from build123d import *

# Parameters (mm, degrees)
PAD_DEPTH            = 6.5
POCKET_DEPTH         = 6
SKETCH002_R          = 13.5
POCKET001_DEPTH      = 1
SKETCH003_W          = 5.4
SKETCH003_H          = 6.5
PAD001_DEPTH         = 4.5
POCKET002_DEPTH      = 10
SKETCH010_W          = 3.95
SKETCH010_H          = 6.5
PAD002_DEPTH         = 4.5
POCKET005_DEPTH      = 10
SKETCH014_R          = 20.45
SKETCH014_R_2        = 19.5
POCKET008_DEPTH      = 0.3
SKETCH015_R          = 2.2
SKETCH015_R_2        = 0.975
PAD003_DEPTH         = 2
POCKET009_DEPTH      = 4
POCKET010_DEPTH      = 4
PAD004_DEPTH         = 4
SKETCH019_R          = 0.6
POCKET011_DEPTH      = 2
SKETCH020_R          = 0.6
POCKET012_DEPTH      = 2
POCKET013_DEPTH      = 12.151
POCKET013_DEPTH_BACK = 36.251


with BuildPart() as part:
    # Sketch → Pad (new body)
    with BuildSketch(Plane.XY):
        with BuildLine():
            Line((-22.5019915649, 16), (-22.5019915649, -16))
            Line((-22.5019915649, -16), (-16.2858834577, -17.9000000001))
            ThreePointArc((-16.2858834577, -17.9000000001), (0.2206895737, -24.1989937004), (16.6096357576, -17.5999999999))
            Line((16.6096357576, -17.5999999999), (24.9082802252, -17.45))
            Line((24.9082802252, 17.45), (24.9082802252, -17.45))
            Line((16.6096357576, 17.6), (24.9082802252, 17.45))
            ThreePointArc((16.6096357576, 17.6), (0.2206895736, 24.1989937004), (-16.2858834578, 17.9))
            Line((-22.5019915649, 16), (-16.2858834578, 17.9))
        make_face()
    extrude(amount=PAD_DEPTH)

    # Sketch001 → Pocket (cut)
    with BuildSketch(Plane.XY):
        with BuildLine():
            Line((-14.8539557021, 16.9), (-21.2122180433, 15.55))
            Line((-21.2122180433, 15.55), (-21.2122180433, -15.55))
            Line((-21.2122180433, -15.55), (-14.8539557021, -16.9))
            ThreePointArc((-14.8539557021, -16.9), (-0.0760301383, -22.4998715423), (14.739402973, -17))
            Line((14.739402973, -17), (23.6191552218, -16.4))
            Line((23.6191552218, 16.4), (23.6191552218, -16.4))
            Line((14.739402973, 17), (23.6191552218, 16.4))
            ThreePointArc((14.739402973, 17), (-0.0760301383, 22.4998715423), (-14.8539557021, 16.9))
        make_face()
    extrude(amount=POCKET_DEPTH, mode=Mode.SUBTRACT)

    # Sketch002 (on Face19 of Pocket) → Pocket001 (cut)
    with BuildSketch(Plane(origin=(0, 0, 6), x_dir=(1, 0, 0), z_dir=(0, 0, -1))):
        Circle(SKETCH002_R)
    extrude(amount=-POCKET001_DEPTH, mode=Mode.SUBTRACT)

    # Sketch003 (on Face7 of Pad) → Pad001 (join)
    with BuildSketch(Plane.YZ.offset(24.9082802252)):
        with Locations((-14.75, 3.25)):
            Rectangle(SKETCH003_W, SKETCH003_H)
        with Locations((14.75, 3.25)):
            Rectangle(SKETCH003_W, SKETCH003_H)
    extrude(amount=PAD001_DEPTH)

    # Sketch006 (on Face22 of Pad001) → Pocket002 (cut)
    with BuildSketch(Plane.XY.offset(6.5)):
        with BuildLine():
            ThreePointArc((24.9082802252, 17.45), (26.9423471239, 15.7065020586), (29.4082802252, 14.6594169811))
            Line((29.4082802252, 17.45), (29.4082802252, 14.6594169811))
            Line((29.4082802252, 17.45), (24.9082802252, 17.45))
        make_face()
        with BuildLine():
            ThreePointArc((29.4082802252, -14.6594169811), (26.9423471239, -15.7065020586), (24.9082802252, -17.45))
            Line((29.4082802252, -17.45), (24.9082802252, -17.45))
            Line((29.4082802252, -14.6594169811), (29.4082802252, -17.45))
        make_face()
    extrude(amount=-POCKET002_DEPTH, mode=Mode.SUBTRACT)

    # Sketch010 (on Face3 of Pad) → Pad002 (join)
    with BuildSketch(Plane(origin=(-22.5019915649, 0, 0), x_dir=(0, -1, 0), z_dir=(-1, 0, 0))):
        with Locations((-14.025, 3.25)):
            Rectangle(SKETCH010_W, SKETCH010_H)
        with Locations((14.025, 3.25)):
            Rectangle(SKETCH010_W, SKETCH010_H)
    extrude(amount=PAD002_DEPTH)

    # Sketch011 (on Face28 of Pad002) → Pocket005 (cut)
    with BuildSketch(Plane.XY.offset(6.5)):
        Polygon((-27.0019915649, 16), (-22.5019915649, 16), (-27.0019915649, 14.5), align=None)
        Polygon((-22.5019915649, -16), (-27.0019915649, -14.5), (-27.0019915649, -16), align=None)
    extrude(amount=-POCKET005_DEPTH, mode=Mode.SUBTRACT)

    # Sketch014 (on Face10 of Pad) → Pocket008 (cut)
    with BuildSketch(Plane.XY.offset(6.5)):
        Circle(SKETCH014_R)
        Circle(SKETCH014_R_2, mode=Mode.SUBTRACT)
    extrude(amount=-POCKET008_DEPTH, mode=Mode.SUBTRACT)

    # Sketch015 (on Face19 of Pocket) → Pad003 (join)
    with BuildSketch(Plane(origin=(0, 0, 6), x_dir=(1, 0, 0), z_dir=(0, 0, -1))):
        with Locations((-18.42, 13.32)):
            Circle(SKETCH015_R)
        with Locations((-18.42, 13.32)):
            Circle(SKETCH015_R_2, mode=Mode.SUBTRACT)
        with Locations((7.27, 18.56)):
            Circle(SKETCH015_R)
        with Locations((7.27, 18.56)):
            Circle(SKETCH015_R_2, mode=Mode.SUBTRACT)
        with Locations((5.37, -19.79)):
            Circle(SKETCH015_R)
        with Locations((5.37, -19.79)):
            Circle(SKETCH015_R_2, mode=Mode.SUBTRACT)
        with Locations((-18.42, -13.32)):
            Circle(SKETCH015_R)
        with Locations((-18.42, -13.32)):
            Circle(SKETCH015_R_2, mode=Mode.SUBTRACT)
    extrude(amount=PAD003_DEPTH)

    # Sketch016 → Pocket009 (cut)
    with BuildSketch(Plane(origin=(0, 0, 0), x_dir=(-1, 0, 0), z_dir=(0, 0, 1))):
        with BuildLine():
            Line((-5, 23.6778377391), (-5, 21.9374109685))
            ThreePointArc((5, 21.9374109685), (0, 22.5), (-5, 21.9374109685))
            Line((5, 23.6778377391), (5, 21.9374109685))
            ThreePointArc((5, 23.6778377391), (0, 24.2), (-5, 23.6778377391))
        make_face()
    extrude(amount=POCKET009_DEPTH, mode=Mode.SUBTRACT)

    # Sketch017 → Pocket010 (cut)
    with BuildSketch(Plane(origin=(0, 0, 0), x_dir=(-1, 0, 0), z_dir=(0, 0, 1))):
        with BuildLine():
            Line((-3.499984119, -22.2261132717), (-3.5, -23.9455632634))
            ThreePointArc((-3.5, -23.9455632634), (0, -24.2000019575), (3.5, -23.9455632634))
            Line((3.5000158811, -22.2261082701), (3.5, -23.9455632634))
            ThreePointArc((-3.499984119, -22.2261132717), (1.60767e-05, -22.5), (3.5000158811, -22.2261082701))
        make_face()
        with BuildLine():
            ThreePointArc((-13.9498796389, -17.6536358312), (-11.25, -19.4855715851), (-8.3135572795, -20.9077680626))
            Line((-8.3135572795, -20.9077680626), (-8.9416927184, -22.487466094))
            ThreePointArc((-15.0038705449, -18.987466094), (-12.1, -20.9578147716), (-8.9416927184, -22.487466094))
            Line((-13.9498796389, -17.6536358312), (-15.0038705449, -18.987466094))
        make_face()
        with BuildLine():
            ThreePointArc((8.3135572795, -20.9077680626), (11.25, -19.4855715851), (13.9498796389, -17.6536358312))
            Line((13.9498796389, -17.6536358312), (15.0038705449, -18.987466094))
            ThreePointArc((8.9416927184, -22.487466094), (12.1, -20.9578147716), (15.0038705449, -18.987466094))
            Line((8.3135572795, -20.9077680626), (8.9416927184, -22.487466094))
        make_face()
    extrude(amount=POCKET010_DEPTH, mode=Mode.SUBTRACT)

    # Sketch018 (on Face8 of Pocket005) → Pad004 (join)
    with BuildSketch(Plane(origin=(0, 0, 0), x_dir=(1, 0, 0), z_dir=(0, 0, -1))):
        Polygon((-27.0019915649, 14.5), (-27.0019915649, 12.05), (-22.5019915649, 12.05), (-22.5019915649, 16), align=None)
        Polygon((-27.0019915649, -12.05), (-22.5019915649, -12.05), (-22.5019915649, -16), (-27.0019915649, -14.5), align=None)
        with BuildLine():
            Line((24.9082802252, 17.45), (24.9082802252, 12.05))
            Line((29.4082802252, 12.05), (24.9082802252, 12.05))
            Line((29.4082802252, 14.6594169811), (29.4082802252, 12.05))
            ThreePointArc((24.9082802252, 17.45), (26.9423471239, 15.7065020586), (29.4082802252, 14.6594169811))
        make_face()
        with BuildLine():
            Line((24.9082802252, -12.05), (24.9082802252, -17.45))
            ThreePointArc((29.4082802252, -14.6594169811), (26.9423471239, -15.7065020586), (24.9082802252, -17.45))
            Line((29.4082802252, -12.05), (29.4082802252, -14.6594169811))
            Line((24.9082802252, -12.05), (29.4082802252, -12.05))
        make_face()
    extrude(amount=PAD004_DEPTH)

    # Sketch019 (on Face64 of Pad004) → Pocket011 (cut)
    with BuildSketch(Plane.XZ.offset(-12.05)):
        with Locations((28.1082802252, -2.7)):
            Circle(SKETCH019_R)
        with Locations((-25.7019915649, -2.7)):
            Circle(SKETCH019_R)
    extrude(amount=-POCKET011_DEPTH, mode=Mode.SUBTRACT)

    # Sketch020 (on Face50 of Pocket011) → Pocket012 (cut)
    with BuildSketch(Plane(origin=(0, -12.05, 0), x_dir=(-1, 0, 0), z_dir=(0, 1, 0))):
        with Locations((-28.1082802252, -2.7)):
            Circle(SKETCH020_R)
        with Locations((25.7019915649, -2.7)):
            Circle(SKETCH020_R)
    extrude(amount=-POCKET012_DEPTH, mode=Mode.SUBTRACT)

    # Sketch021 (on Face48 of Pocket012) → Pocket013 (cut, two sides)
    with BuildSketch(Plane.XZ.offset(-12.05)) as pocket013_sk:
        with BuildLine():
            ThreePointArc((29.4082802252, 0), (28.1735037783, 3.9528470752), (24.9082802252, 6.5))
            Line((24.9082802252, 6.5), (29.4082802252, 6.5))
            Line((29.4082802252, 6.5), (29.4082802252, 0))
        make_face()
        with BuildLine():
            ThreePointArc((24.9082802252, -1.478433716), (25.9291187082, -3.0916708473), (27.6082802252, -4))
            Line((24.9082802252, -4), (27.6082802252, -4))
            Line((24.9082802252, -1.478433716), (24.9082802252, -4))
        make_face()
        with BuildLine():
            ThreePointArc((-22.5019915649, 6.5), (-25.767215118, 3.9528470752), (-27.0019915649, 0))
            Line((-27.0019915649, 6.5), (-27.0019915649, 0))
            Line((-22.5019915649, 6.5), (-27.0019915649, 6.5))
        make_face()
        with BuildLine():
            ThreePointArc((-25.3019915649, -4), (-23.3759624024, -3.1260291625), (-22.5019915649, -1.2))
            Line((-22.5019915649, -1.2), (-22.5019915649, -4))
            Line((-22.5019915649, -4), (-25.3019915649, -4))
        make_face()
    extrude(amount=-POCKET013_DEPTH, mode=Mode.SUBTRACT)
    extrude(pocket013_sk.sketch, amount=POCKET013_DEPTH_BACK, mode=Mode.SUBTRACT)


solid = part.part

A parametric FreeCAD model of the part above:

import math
import FreeCAD as App
import Part
import Sketcher
from FreeCAD import Vector

doc = App.newDocument("Part")
body = doc.addObject("PartDesign::Body", "Body")

sketch1 = body.newObject("Sketcher::SketchObject", "Sketch")
sketch1.AttachmentSupport = (doc.getObject("XY_Plane"), [""])
sketch1.MapMode = "FlatFace"
sketch1.addGeometry([
    Part.LineSegment(Vector(-23, 16, 0), Vector(-23, -16, 0)),
    Part.LineSegment(Vector(-23, -16, 0), Vector(-16, -18, 0)),
    Part.ArcOfCircle(Part.Circle(Vector(0, 0, 0), Vector(0, 0, 1), 24), math.radians(-132), math.radians(-47)),
    Part.LineSegment(Vector(17, -18, 0), Vector(25, -17, 0)),
    Part.LineSegment(Vector(25, -17, 0), Vector(25, 17, 0)),
    Part.LineSegment(Vector(25, 17, 0), Vector(17, 18, 0)),
    Part.ArcOfCircle(Part.Circle(Vector(0, 0, 0), Vector(0, 0, 1), 24), math.radians(47), math.radians(132)),
    Part.LineSegment(Vector(-16, 18, 0), Vector(-23, 16, 0)),
], False)
sketch1.addConstraint([
    Sketcher.Constraint("Coincident", 0, 2, 1, 1),
    Sketcher.Constraint("Coincident", 1, 2, 2, 1),
    Sketcher.Constraint("Coincident", 2, 2, 3, 1),
    Sketcher.Constraint("Coincident", 3, 2, 4, 1),
    Sketcher.Constraint("Coincident", 4, 2, 5, 1),
    Sketcher.Constraint("Coincident", 5, 2, 6, 1),
    Sketcher.Constraint("Coincident", 6, 2, 7, 1),
    Sketcher.Constraint("Coincident", 7, 2, 0, 1),
    Sketcher.Constraint("Vertical", 0),
    Sketcher.Constraint("Vertical", 4),
    Sketcher.Constraint("Coincident", 2, 3, -1, 1),
    Sketcher.Constraint("Coincident", 6, 3, -1, 1),
    Sketcher.Constraint("Equal", 2, 6),
    Sketcher.Constraint("Vertical", 2, 2, 5, 2),
    Sketcher.Constraint("Vertical", 1, 2, 6, 2),
    Sketcher.Constraint("Equal", 3, 5),
    Sketcher.Constraint("Equal", 1, 7),
    Sketcher.Constraint("Radius", 2, 24.2),
    Sketcher.Constraint("DistanceY", 0, 2, 0, 1, 32.0),
    Sketcher.Constraint("DistanceY", 4, 1, 4, 2, 34.9),
    Sketcher.Constraint("Distance", 1, 6.5),
    Sketcher.Constraint("Distance", 3, 8.3),
    Sketcher.Constraint("DistanceY", 1, 2, -1, 1, 17.9),
    Sketcher.Constraint("DistanceY", 2, 2, -1, 1, 17.6),
])
pad1 = body.newObject("PartDesign::Pad", "Pad")
pad1.Profile = sketch1
pad1.Length = 6.5

sketch2 = body.newObject("Sketcher::SketchObject", "Sketch001")
sketch2.AttachmentSupport = (doc.getObject("XY_Plane"), [""])
sketch2.MapMode = "FlatFace"
sketch2.addGeometry([
    Part.LineSegment(Vector(-15, 17, 0), Vector(-21, 16, 0)),
    Part.LineSegment(Vector(-21, 16, 0), Vector(-21, -16, 0)),
    Part.LineSegment(Vector(-21, -16, 0), Vector(-15, -17, 0)),
    Part.ArcOfCircle(Part.Circle(Vector(0, 0, 0), Vector(0, 0, 1), 22), math.radians(-131), math.radians(-49)),
    Part.LineSegment(Vector(15, -17, 0), Vector(24, -16, 0)),
    Part.LineSegment(Vector(24, -16, 0), Vector(24, 16, 0)),
    Part.LineSegment(Vector(24, 16, 0), Vector(15, 17, 0)),
    Part.ArcOfCircle(Part.Circle(Vector(0, 0, 0), Vector(0, 0, 1), 22), math.radians(49), math.radians(131)),
], False)
sketch2.addConstraint([
    Sketcher.Constraint("Coincident", 0, 2, 1, 1),
    Sketcher.Constraint("Coincident", 1, 2, 2, 1),
    Sketcher.Constraint("Coincident", 2, 2, 3, 1),
    Sketcher.Constraint("Coincident", 3, 2, 4, 1),
    Sketcher.Constraint("Coincident", 4, 2, 5, 1),
    Sketcher.Constraint("Coincident", 5, 2, 6, 1),
    Sketcher.Constraint("Coincident", 6, 2, 7, 1),
    Sketcher.Constraint("Coincident", 7, 2, 0, 1),
    Sketcher.Constraint("Vertical", 1),
    Sketcher.Constraint("Vertical", 5),
    Sketcher.Constraint("Coincident", 3, 3, -1, 1),
    Sketcher.Constraint("Coincident", 7, 3, -1, 1),
    Sketcher.Constraint("Equal", 3, 7),
    Sketcher.Constraint("Vertical", 3, 2, 6, 2),
    Sketcher.Constraint("Vertical", 2, 2, 7, 2),
    Sketcher.Constraint("Equal", 0, 2),
    Sketcher.Constraint("Equal", 4, 6),
    Sketcher.Constraint("Radius", 3, 22.5),
    Sketcher.Constraint("DistanceY", 1, 2, 1, 1, 31.1),
    Sketcher.Constraint("DistanceY", 5, 1, 5, 2, 32.8),
    Sketcher.Constraint("DistanceY", 3, 2, -1, 1, 17.0),
    Sketcher.Constraint("Distance", 0, 6.5),
    Sketcher.Constraint("Distance", 4, 8.9),
    Sketcher.Constraint("DistanceY", 2, 2, -1, 1, 16.9),
])
pocket1 = body.newObject("PartDesign::Pocket", "Pocket")
pocket1.Profile = sketch2
pocket1.Length = 6
pocket1.Reversed = True

sketch3 = body.newObject("Sketcher::SketchObject", "Sketch002")
sketch3.AttachmentSupport = (doc.getObject("XY_Plane"), [""])
sketch3.MapMode = "FlatFace"
sketch3.AttachmentOffset = App.Placement(Vector(0, 0, 6), App.Rotation())
sketch3.addGeometry(Part.Circle(Vector(0, 0, 0), Vector(0, 0, 1), 14), False)
sketch3.addConstraint([
    Sketcher.Constraint("Coincident", 0, 3, -1, 1),
    Sketcher.Constraint("Diameter", 0, 27.0),
])
pocket2 = body.newObject("PartDesign::Pocket", "Pocket001")
pocket2.Profile = sketch3
pocket2.Length = 1
pocket2.Reversed = True

sketch4 = body.newObject("Sketcher::SketchObject", "Sketch003")
sketch4.AttachmentSupport = (doc.getObject("YZ_Plane"), [""])
sketch4.MapMode = "FlatFace"
sketch4.AttachmentOffset = App.Placement(Vector(0, 0, 24.90828), App.Rotation())
sketch4.addGeometry([
    Part.LineSegment(Vector(-17, 6, 0), Vector(-17, 0, 0)),
    Part.LineSegment(Vector(-17, 0, 0), Vector(-12, 0, 0)),
    Part.LineSegment(Vector(-12, 0, 0), Vector(-12, 6, 0)),
    Part.LineSegment(Vector(-12, 6, 0), Vector(-17, 6, 0)),
    Part.LineSegment(Vector(12, 6, 0), Vector(12, 0, 0)),
    Part.LineSegment(Vector(12, 0, 0), Vector(17, 0, 0)),
    Part.LineSegment(Vector(17, 0, 0), Vector(17, 6, 0)),
    Part.LineSegment(Vector(17, 6, 0), Vector(12, 6, 0)),
], False)
sketch4.addConstraint([
    Sketcher.Constraint("Coincident", 0, 2, 1, 1),
    Sketcher.Constraint("Coincident", 1, 2, 2, 1),
    Sketcher.Constraint("Coincident", 2, 2, 3, 1),
    Sketcher.Constraint("Coincident", 3, 2, 0, 1),
    Sketcher.Constraint("Coincident", 4, 2, 5, 1),
    Sketcher.Constraint("Coincident", 5, 2, 6, 1),
    Sketcher.Constraint("Coincident", 6, 2, 7, 1),
    Sketcher.Constraint("Coincident", 7, 2, 4, 1),
    Sketcher.Constraint("Vertical", 0),
    Sketcher.Constraint("Horizontal", 1),
    Sketcher.Constraint("Vertical", 2),
    Sketcher.Constraint("Horizontal", 3),
    Sketcher.Constraint("Vertical", 4),
    Sketcher.Constraint("Horizontal", 5),
    Sketcher.Constraint("Vertical", 6),
    Sketcher.Constraint("Horizontal", 7),
    Sketcher.Constraint("Symmetric", 1, 2, 4, 2, -1, 1),
    Sketcher.Constraint("Symmetric", 0, 2, 5, 2, -2),
    Sketcher.Constraint("Horizontal", 3, 2, 6, 2),
    Sketcher.Constraint("DistanceX", 1, 1, 1, 2, 5.4),
    Sketcher.Constraint("DistanceY", 0, 2, 0, 1, 6.5),
    Sketcher.Constraint("DistanceX", 1, 2, 4, 2, 24.1),
])
pad2 = body.newObject("PartDesign::Pad", "Pad001")
pad2.Profile = sketch4
pad2.Length = 4.5

sketch5 = body.newObject("Sketcher::SketchObject", "Sketch004")
sketch5.AttachmentSupport = (doc.getObject("XY_Plane"), [""])
sketch5.MapMode = "FlatFace"
sketch5.AttachmentOffset = App.Placement(Vector(0, 0, 6.5), App.Rotation())
sketch5.addGeometry([
    Part.ArcOfCircle(Part.Circle(Vector(31.6, 23.2, 0), Vector(0, 0, 1), 8.8), math.radians(-139), math.radians(-104)),
    Part.LineSegment(Vector(29.4, 14.7, 0), Vector(29.4, 17.4, 0)),
    Part.LineSegment(Vector(29.4, 17.4, 0), Vector(24.9, 17.4, 0)),
    Part.ArcOfCircle(Part.Circle(Vector(31.6, -23.2, 0), Vector(0, 0, 1), 8.8), math.radians(104), math.radians(139)),
    Part.LineSegment(Vector(24.9, -17.4, 0), Vector(29.4, -17.4, 0)),
    Part.LineSegment(Vector(29.4, -17.4, 0), Vector(29.4, -14.7, 0)),
], False)
sketch5.addConstraint([
    Sketcher.Constraint("Coincident", 0, 2, 1, 1),
    Sketcher.Constraint("Coincident", 1, 2, 2, 1),
    Sketcher.Constraint("Coincident", 2, 2, 0, 1),
    Sketcher.Constraint("Coincident", 3, 2, 4, 1),
    Sketcher.Constraint("Coincident", 4, 2, 5, 1),
    Sketcher.Constraint("Coincident", 5, 2, 3, 1),
    Sketcher.Constraint("Vertical", 1),
    Sketcher.Constraint("Horizontal", 2),
    Sketcher.Constraint("Horizontal", 4),
    Sketcher.Constraint("Vertical", 5),
    Sketcher.Constraint("Equal", 0, 3),
    Sketcher.Constraint("Symmetric", 0, 3, 3, 3, -1),
    Sketcher.Constraint("Symmetric", 1, 2, 4, 2, -1),
    Sketcher.Constraint("DistanceX", 2, 2, 2, 1, 4.5),
    Sketcher.Constraint("DistanceY", 3, 3, 0, 3, 46.3),
    Sketcher.Constraint("DistanceY", 1, 2, 0, 3, 5.7),
    Sketcher.Constraint("DistanceX", 0, 2, 0, 3, 2.15),
    Sketcher.Constraint("DistanceX", -1, 1, 0, 3, 31.55828),
])
pocket3 = body.newObject("PartDesign::Pocket", "Pocket002")
pocket3.Profile = sketch5
pocket3.Length = 10

sketch6 = body.newObject("Sketcher::SketchObject", "Sketch005")
sketch6.AttachmentSupport = (doc.getObject("YZ_Plane"), [""])
sketch6.MapMode = "FlatFace"
sketch6.AttachmentOffset = App.Placement(Vector(0, 0, -22.501992), App.Rotation())
sketch6.addGeometry([
    Part.LineSegment(Vector(16, 6.5, 0), Vector(16, 0, 0)),
    Part.LineSegment(Vector(16, 0, 0), Vector(12.1, 0, 0)),
    Part.LineSegment(Vector(12.1, 0, 0), Vector(12.1, 6.5, 0)),
    Part.LineSegment(Vector(12.1, 6.5, 0), Vector(16, 6.5, 0)),
    Part.LineSegment(Vector(-12.1, 6.5, 0), Vector(-12.1, 0, 0)),
    Part.LineSegment(Vector(-12.1, 0, 0), Vector(-16, 0, 0)),
    Part.LineSegment(Vector(-16, 0, 0), Vector(-16, 6.5, 0)),
    Part.LineSegment(Vector(-16, 6.5, 0), Vector(-12.1, 6.5, 0)),
], False)
sketch6.addConstraint([
    Sketcher.Constraint("Coincident", 0, 2, 1, 1),
    Sketcher.Constraint("Coincident", 1, 2, 2, 1),
    Sketcher.Constraint("Coincident", 2, 2, 3, 1),
    Sketcher.Constraint("Coincident", 3, 2, 0, 1),
    Sketcher.Constraint("Coincident", 4, 2, 5, 1),
    Sketcher.Constraint("Coincident", 5, 2, 6, 1),
    Sketcher.Constraint("Coincident", 6, 2, 7, 1),
    Sketcher.Constraint("Coincident", 7, 2, 4, 1),
    Sketcher.Constraint("Vertical", 0),
    Sketcher.Constraint("Horizontal", 1),
    Sketcher.Constraint("Vertical", 2),
    Sketcher.Constraint("Horizontal", 3),
    Sketcher.Constraint("Vertical", 4),
    Sketcher.Constraint("Horizontal", 5),
    Sketcher.Constraint("Vertical", 6),
    Sketcher.Constraint("Horizontal", 7),
    Sketcher.Constraint("Symmetric", 1, 2, 4, 2, -1, 1),
    Sketcher.Constraint("Symmetric", 0, 2, 5, 2, -2),
    Sketcher.Constraint("Horizontal", 3, 2, 6, 2),
    Sketcher.Constraint("DistanceY", 0, 2, 0, 1, 6.5),
    Sketcher.Constraint("DistanceX", -1, 1, 0, 2, 16.0),
    Sketcher.Constraint("DistanceX", 1, 2, 1, 1, 3.95),
])
pad3 = body.newObject("PartDesign::Pad", "Pad002")
pad3.Profile = sketch6
pad3.Length = 4.5
pad3.Reversed = True

sketch7 = body.newObject("Sketcher::SketchObject", "Sketch006")
sketch7.AttachmentSupport = (doc.getObject("XY_Plane"), [""])
sketch7.MapMode = "FlatFace"
sketch7.AttachmentOffset = App.Placement(Vector(0, 0, 6.5), App.Rotation())
sketch7.addGeometry([
    Part.LineSegment(Vector(-22.5, 16, 0), Vector(-27, 16, 0)),
    Part.LineSegment(Vector(-27, 16, 0), Vector(-27, 14.5, 0)),
    Part.LineSegment(Vector(-27, 14.5, 0), Vector(-22.5, 16, 0)),
    Part.LineSegment(Vector(-22.5, -16, 0), Vector(-27, -14.5, 0)),
    Part.LineSegment(Vector(-27, -14.5, 0), Vector(-27, -16, 0)),
    Part.LineSegment(Vector(-27, -16, 0), Vector(-22.5, -16, 0)),
], False)
sketch7.addConstraint([
    Sketcher.Constraint("Coincident", 0, 2, 1, 1),
    Sketcher.Constraint("Coincident", 1, 2, 2, 1),
    Sketcher.Constraint("Coincident", 2, 2, 0, 1),
    Sketcher.Constraint("Coincident", 3, 2, 4, 1),
    Sketcher.Constraint("Coincident", 4, 2, 5, 1),
    Sketcher.Constraint("Coincident", 5, 2, 3, 1),
    Sketcher.Constraint("Horizontal", 0),
    Sketcher.Constraint("Vertical", 1),
    Sketcher.Constraint("Vertical", 4),
    Sketcher.Constraint("Horizontal", 5),
    Sketcher.Constraint("Symmetric", 1, 2, 3, 2, -1),
    Sketcher.Constraint("Symmetric", 2, 2, 5, 2, -1),
    Sketcher.Constraint("DistanceX", 0, 2, 0, 1, 4.5),
    Sketcher.Constraint("DistanceY", 1, 2, 1, 1, 1.5),
    Sketcher.Constraint("DistanceY", -1, 1, 0, 2, 16.0),
    Sketcher.Constraint("DistanceX", 0, 2, -1, 1, 27.001992),
])
pocket4 = body.newObject("PartDesign::Pocket", "Pocket003")
pocket4.Profile = sketch7
pocket4.Length = 10

sketch8 = body.newObject("Sketcher::SketchObject", "Sketch007")
sketch8.AttachmentSupport = (doc.getObject("XY_Plane"), [""])
sketch8.MapMode = "FlatFace"
sketch8.AttachmentOffset = App.Placement(Vector(0, 0, 6.5), App.Rotation())
sketch8.addGeometry([
    Part.Circle(Vector(0, 0, 0), Vector(0, 0, 1), 20),
    Part.Circle(Vector(0, 0, 0), Vector(0, 0, 1), 20),
], False)
sketch8.addConstraint([
    Sketcher.Constraint("Coincident", 0, 3, -1, 1),
    Sketcher.Constraint("Coincident", 1, 3, -1, 1),
    Sketcher.Constraint("Diameter", 1, 39.0),
    Sketcher.Constraint("Diameter", 0, 40.9),
])
pocket5 = body.newObject("PartDesign::Pocket", "Pocket004")
pocket5.Profile = sketch8
pocket5.Length = 0.3

sketch9 = body.newObject("Sketcher::SketchObject", "Sketch008")
sketch9.AttachmentSupport = (doc.getObject("XY_Plane"), [""])
sketch9.MapMode = "FlatFace"
sketch9.AttachmentOffset = App.Placement(Vector(0, 0, 6), App.Rotation())
sketch9.addGeometry([
    Part.Circle(Vector(-18.4, -13.3, 0), Vector(0, 0, 1), 2.2),
    Part.Circle(Vector(-18.4, -13.3, 0), Vector(0, 0, 1), 1),
    Part.Circle(Vector(7.3, -18.6, 0), Vector(0, 0, 1), 2.2),
    Part.Circle(Vector(7.3, -18.6, 0), Vector(0, 0, 1), 1),
    Part.Circle(Vector(5.4, 19.8, 0), Vector(0, 0, 1), 2.2),
    Part.Circle(Vector(5.4, 19.8, 0), Vector(0, 0, 1), 1),
    Part.Circle(Vector(-18.4, 13.3, 0), Vector(0, 0, 1), 2.2),
    Part.Circle(Vector(-18.4, 13.3, 0), Vector(0, 0, 1), 1),
], False)
sketch9.addConstraint([
    Sketcher.Constraint("Coincident", 1, 3, 0, 3),
    Sketcher.Constraint("Coincident", 3, 3, 2, 3),
    Sketcher.Constraint("Coincident", 5, 3, 4, 3),
    Sketcher.Constraint("Coincident", 7, 3, 6, 3),
    Sketcher.Constraint("Equal", 0, 2),
    Sketcher.Constraint("Equal", 1, 3),
    Sketcher.Constraint("Equal", 2, 4),
    Sketcher.Constraint("Equal", 3, 5),
    Sketcher.Constraint("Equal", 4, 6),
    Sketcher.Constraint("Equal", 5, 7),
    Sketcher.Constraint("Symmetric", 0, 3, 6, 3, -1),
    Sketcher.Constraint("Diameter", 0, 4.4),
    Sketcher.Constraint("Diameter", 1, 1.95),
    Sketcher.Constraint("DistanceX", 4, 3, 2, 3, 1.9),
    Sketcher.Constraint("DistanceX", 0, 3, -1, 1, 18.42),
    Sketcher.Constraint("DistanceY", 0, 3, -1, 1, 13.32),
    Sketcher.Constraint("DistanceX", -1, 1, 2, 3, 7.27),
    Sketcher.Constraint("DistanceY", 2, 3, -1, 1, 18.56),
    Sketcher.Constraint("DistanceY", -1, 1, 4, 3, 19.79),
])
pad4 = body.newObject("PartDesign::Pad", "Pad003")
pad4.Profile = sketch9
pad4.Length = 2
pad4.Reversed = True

sketch10 = body.newObject("Sketcher::SketchObject", "Sketch009")
sketch10.AttachmentSupport = (doc.getObject("XY_Plane"), [""])
sketch10.MapMode = "FlatFace"
sketch10.addGeometry([
    Part.LineSegment(Vector(5, -23.7, 0), Vector(5, -21.9, 0)),
    Part.ArcOfCircle(Part.Circle(Vector(0, 0, 0), Vector(0, 0, 1), 22.5), math.radians(-103), math.radians(-77)),
    Part.LineSegment(Vector(-5, -21.9, 0), Vector(-5, -23.7, 0)),
    Part.ArcOfCircle(Part.Circle(Vector(0, 0, 0), Vector(0, 0, 1), 24.2), math.radians(-102), math.radians(-78)),
], False)
sketch10.addConstraint([
    Sketcher.Constraint("Coincident", 0, 2, 1, 2),
    Sketcher.Constraint("Coincident", 1, 1, 2, 1),
    Sketcher.Constraint("Coincident", 2, 2, 3, 1),
    Sketcher.Constraint("Coincident", 3, 2, 0, 1),
    Sketcher.Constraint("Vertical", 0),
    Sketcher.Constraint("Vertical", 2),
    Sketcher.Constraint("Coincident", 1, 3, -1, 1),
    Sketcher.Constraint("Coincident", 3, 3, -1, 1),
    Sketcher.Constraint("Horizontal", 0, 2, 1, 1),
    Sketcher.Constraint("Radius", 1, 22.5),
    Sketcher.Constraint("Radius", 3, 24.2),
    Sketcher.Constraint("DistanceX", -1, 1, 0, 2, 5.0),
])
pocket6 = body.newObject("PartDesign::Pocket", "Pocket005")
pocket6.Profile = sketch10
pocket6.Length = 4
pocket6.Reversed = True

sketch11 = body.newObject("Sketcher::SketchObject", "Sketch010")
sketch11.AttachmentSupport = (doc.getObject("XY_Plane"), [""])
sketch11.MapMode = "FlatFace"
sketch11.addGeometry([
    Part.LineSegment(Vector(3.5, 22.2, 0), Vector(3.5, 23.9, 0)),
    Part.ArcOfCircle(Part.Circle(Vector(0, 0, 0), Vector(0, 0, 1), 24.2), math.radians(81.68), math.radians(98.32)),
    Part.LineSegment(Vector(-3.5, 23.9, 0), Vector(-3.5, 22.2, 0)),
    Part.ArcOfCircle(Part.Circle(Vector(0, 0, 0), Vector(0, 0, 1), 22.5), math.radians(81.05), math.radians(98.95)),
    Part.ArcOfCircle(Part.Circle(Vector(0, 0, 0), Vector(0, 0, 1), 22.5), math.radians(51.68), math.radians(68.32)),
    Part.LineSegment(Vector(13.9, 17.7, 0), Vector(15, 19, 0)),
    Part.ArcOfCircle(Part.Circle(Vector(0, 0, 0), Vector(0, 0, 1), 24.2), math.radians(51.68), math.radians(68.32)),
    Part.LineSegment(Vector(8.9, 22.5, 0), Vector(8.3, 20.9, 0)),
    Part.ArcOfCircle(Part.Circle(Vector(0, 0, 0), Vector(0, 0, 1), 22.5), math.radians(111.68), math.radians(128.32)),
    Part.LineSegment(Vector(-8.3, 20.9, 0), Vector(-8.9, 22.5, 0)),
    Part.ArcOfCircle(Part.Circle(Vector(0, 0, 0), Vector(0, 0, 1), 24.2), math.radians(111.68), math.radians(128.32)),
    Part.LineSegment(Vector(-15, 19, 0), Vector(-13.9, 17.7, 0)),
], False)
sketch11.addConstraint([
    Sketcher.Constraint("Coincident", 0, 2, 1, 1),
    Sketcher.Constraint("Coincident", 1, 2, 2, 1),
    Sketcher.Constraint("Coincident", 2, 2, 3, 2),
    Sketcher.Constraint("Coincident", 3, 1, 0, 1),
    Sketcher.Constraint("Coincident", 4, 1, 5, 1),
    Sketcher.Constraint("Coincident", 5, 2, 6, 1),
    Sketcher.Constraint("Coincident", 6, 2, 7, 1),
    Sketcher.Constraint("Coincident", 7, 2, 4, 2),
    Sketcher.Constraint("Coincident", 8, 1, 9, 1),
    Sketcher.Constraint("Coincident", 9, 2, 10, 1),
    Sketcher.Constraint("Coincident", 10, 2, 11, 1),
    Sketcher.Constraint("Coincident", 11, 2, 8, 2),
    Sketcher.Constraint("Coincident", 3, 3, -1, 1),
    Sketcher.Constraint("Coincident", 4, 3, -1, 1),
    Sketcher.Constraint("Coincident", 6, 3, -1, 1),
    Sketcher.Constraint("Coincident", 8, 3, -1, 1),
    Sketcher.Constraint("Coincident", 10, 3, -1, 1),
    Sketcher.Constraint("Equal", 3, 4),
    Sketcher.Constraint("Equal", 4, 8),
    Sketcher.Constraint("Equal", 6, 10),
    Sketcher.Constraint("Symmetric", 0, 2, 1, 2, -2),
    Sketcher.Constraint("Parallel", 0, 2),
    Sketcher.Constraint("Horizontal", 7, 2, 8, 1),
    Sketcher.Constraint("Horizontal", 6, 2, 9, 2),
    Sketcher.Constraint("Horizontal", 5, 2, 10, 2),
    Sketcher.Constraint("Horizontal", 4, 1, 11, 2),
    Sketcher.Constraint("Radius", 3, 22.5),
    Sketcher.Constraint("Radius", 6, 24.2),
    Sketcher.Constraint("DistanceX", 1, 2, 0, 2, 7.0),
    Sketcher.Constraint("DistanceY", 5, 2, 6, 2, 3.5),
    Sketcher.Constraint("Radius", 1, 24.199816),
    Sketcher.Constraint("DistanceY", 7, 2, 6, 2, 1.579698),
    Sketcher.Constraint("Distance", 0, 1.71945),
    Sketcher.Constraint("DistanceY", -1, 1, 2, 2, 22.226108),
    Sketcher.Constraint("DistanceX", -1, 1, 4, 1, 13.94988),
    Sketcher.Constraint("DistanceX", -1, 1, 5, 2, 15.003871),
])
pocket7 = body.newObject("PartDesign::Pocket", "Pocket006")
pocket7.Profile = sketch11
pocket7.Length = 4
pocket7.Reversed = True

sketch12 = body.newObject("Sketcher::SketchObject", "Sketch011")
sketch12.AttachmentSupport = (doc.getObject("XY_Plane"), [""])
sketch12.MapMode = "FlatFace"
sketch12.addGeometry([
    Part.LineSegment(Vector(-27, -14.5, 0), Vector(-27, -12.1, 0)),
    Part.LineSegment(Vector(-27, -12.1, 0), Vector(-22.5, -12.1, 0)),
    Part.LineSegment(Vector(-22.5, -12.1, 0), Vector(-22.5, -16, 0)),
    Part.LineSegment(Vector(-22.5, -16, 0), Vector(-27, -14.5, 0)),
    Part.LineSegment(Vector(-22.5, 12.1, 0), Vector(-27, 12.1, 0)),
    Part.LineSegment(Vector(-27, 12.1, 0), Vector(-27, 14.5, 0)),
    Part.LineSegment(Vector(-27, 14.5, 0), Vector(-22.5, 16, 0)),
    Part.LineSegment(Vector(-22.5, 16, 0), Vector(-22.5, 12.1, 0)),
    Part.LineSegment(Vector(24.9, -17.4, 0), Vector(24.9, -12.1, 0)),
    Part.LineSegment(Vector(24.9, -12.1, 0), Vector(29.4, -12.1, 0)),
    Part.LineSegment(Vector(29.4, -12.1, 0), Vector(29.4, -14.7, 0)),
    Part.ArcOfCircle(Part.Circle(Vector(31.6, -23.2, 0), Vector(0, 0, 1), 8.8), math.radians(104), math.radians(139)),
    Part.LineSegment(Vector(24.9, 12.1, 0), Vector(24.9, 17.4, 0)),
    Part.ArcOfCircle(Part.Circle(Vector(31.6, 23.2, 0), Vector(0, 0, 1), 8.8), math.radians(-139), math.radians(-104)),
    Part.LineSegment(Vector(29.4, 14.7, 0), Vector(29.4, 12.1, 0)),
    Part.LineSegment(Vector(29.4, 12.1, 0), Vector(24.9, 12.1, 0)),
], False)
sketch12.addConstraint([
    Sketcher.Constraint("Coincident", 0, 2, 1, 1),
    Sketcher.Constraint("Coincident", 1, 2, 2, 1),
    Sketcher.Constraint("Coincident", 2, 2, 3, 1),
    Sketcher.Constraint("Coincident", 3, 2, 0, 1),
    Sketcher.Constraint("Coincident", 4, 2, 5, 1),
    Sketcher.Constraint("Coincident", 5, 2, 6, 1),
    Sketcher.Constraint("Coincident", 6, 2, 7, 1),
    Sketcher.Constraint("Coincident", 7, 2, 4, 1),
    Sketcher.Constraint("Coincident", 8, 2, 9, 1),
    Sketcher.Constraint("Coincident", 9, 2, 10, 1),
    Sketcher.Constraint("Coincident", 10, 2, 11, 1),
    Sketcher.Constraint("Coincident", 11, 2, 8, 1),
    Sketcher.Constraint("Coincident", 12, 2, 13, 1),
    Sketcher.Constraint("Coincident", 13, 2, 14, 1),
    Sketcher.Constraint("Coincident", 14, 2, 15, 1),
    Sketcher.Constraint("Coincident", 15, 2, 12, 1),
    Sketcher.Constraint("Vertical", 0),
    Sketcher.Constraint("Horizontal", 1),
    Sketcher.Constraint("Vertical", 2),
    Sketcher.Constraint("Horizontal", 4),
    Sketcher.Constraint("Vertical", 5),
    Sketcher.Constraint("Vertical", 7),
    Sketcher.Constraint("Vertical", 8),
    Sketcher.Constraint("Horizontal", 9),
    Sketcher.Constraint("Vertical", 10),
    Sketcher.Constraint("Vertical", 12),
    Sketcher.Constraint("Vertical", 14),
    Sketcher.Constraint("Horizontal", 15),
    Sketcher.Constraint("Equal", 11, 13),
    Sketcher.Constraint("Symmetric", 11, 3, 13, 3, -1),
    Sketcher.Constraint("Symmetric", 0, 2, 4, 2, -1),
    Sketcher.Constraint("Symmetric", 2, 2, 6, 2, -1),
    Sketcher.Constraint("Symmetric", 9, 2, 14, 2, -1),
    Sketcher.Constraint("Horizontal", 1, 2, 8, 2),
    Sketcher.Constraint("Vertical", 11, 2, 12, 2),
    Sketcher.Constraint("Equal", 4, 9),
    Sketcher.Constraint("Equal", 0, 5),
    Sketcher.Constraint("DistanceX", 1, 1, 1, 2, 4.5),
    Sketcher.Constraint("DistanceY", 8, 1, 8, 2, 5.4),
    Sketcher.Constraint("DistanceY", 2, 2, -1, 1, 16.0),
    Sketcher.Constraint("DistanceY", 3, 2, 5, 2, 29.0),
    Sketcher.Constraint("DistanceY", 0, 1, 0, 2, 2.45),
    Sketcher.Constraint("DistanceY", 11, 3, 13, 3, 46.3),
    Sketcher.Constraint("DistanceX", 8, 2, 11, 3, 6.65),
    Sketcher.Constraint("DistanceX", -1, 1, 11, 3, 31.55828),
    Sketcher.Constraint("DistanceX", 0, 2, -1, 1, 27.001992),
])
pad5 = body.newObject("PartDesign::Pad", "Pad004")
pad5.Profile = sketch12
pad5.Length = 4
pad5.Reversed = True

sketch13 = body.newObject("Sketcher::SketchObject", "Sketch012")
sketch13.AttachmentSupport = (doc.getObject("XZ_Plane"), [""])
sketch13.MapMode = "FlatFace"
sketch13.AttachmentOffset = App.Placement(Vector(0, 0, -12.05), App.Rotation())
sketch13.addGeometry([
    Part.Circle(Vector(28.1, -2.7, 0), Vector(0, 0, 1), 0.6),
    Part.Circle(Vector(-25.7, -2.7, 0), Vector(0, 0, 1), 0.6),
], False)
sketch13.addConstraint([
    Sketcher.Constraint("Equal", 0, 1),
    Sketcher.Constraint("Horizontal", 0, 3, 1, 3),
    Sketcher.Constraint("Diameter", 0, 1.2),
    Sketcher.Constraint("DistanceY", 0, 3, -1, 1, 2.7),
    Sketcher.Constraint("DistanceX", -1, 1, 0, 3, 28.10828),
    Sketcher.Constraint("DistanceX", 1, 3, -1, 1, 25.701992),
])
pocket8 = body.newObject("PartDesign::Pocket", "Pocket007")
pocket8.Profile = sketch13
pocket8.Length = 2

sketch14 = body.newObject("Sketcher::SketchObject", "Sketch013")
sketch14.AttachmentSupport = (doc.getObject("XZ_Plane"), [""])
sketch14.MapMode = "FlatFace"
sketch14.AttachmentOffset = App.Placement(Vector(0, 0, 12.05), App.Rotation())
sketch14.addGeometry([
    Part.Circle(Vector(28.1, -2.7, 0), Vector(0, 0, 1), 0.6),
    Part.Circle(Vector(-25.7, -2.7, 0), Vector(0, 0, 1), 0.6),
], False)
sketch14.addConstraint([
    Sketcher.Constraint("Equal", 0, 1),
    Sketcher.Constraint("Horizontal", 0, 3, 1, 3),
    Sketcher.Constraint("Diameter", 0, 1.2),
    Sketcher.Constraint("DistanceY", 0, 3, -1, 1, 2.7),
    Sketcher.Constraint("DistanceX", -1, 1, 0, 3, 28.10828),
    Sketcher.Constraint("DistanceX", 1, 3, -1, 1, 25.701992),
])
pocket9 = body.newObject("PartDesign::Pocket", "Pocket008")
pocket9.Profile = sketch14
pocket9.Length = 2
pocket9.Reversed = True

sketch15 = body.newObject("Sketcher::SketchObject", "Sketch014")
sketch15.AttachmentSupport = (doc.getObject("XZ_Plane"), [""])
sketch15.MapMode = "FlatFace"
sketch15.AttachmentOffset = App.Placement(Vector(0, 0, -12.05), App.Rotation())
sketch15.addGeometry([
    Part.ArcOfCircle(Part.Circle(Vector(22.5, 0, 0), Vector(0, 0, 1), 6.9), math.radians(0), math.radians(69)),
    Part.LineSegment(Vector(29.4, 0, 0), Vector(29.4, 6.5, 0)),
    Part.LineSegment(Vector(29.4, 6.5, 0), Vector(24.9, 6.5, 0)),
    Part.ArcOfCircle(Part.Circle(Vector(28.5, -0.3, 0), Vector(0, 0, 1), 3.8), math.radians(-162), math.radians(-104)),
    Part.LineSegment(Vector(24.9, -1.5, 0), Vector(24.9, -4, 0)),
    Part.LineSegment(Vector(24.9, -4, 0), Vector(27.6, -4, 0)),
    Part.ArcOfCircle(Part.Circle(Vector(-20.1, 0, 0), Vector(0, 0, 1), 6.9), math.radians(111), math.radians(180)),
    Part.LineSegment(Vector(-22.5, 6.5, 0), Vector(-27, 6.5, 0)),
    Part.LineSegment(Vector(-27, 6.5, 0), Vector(-27, 0, 0)),
    Part.ArcOfCircle(Part.Circle(Vector(-25.5, -1, 0), Vector(0, 0, 1), 3), math.radians(-86), math.radians(-4)),
    Part.LineSegment(Vector(-25.3, -4, 0), Vector(-22.5, -4, 0)),
    Part.LineSegment(Vector(-22.5, -4, 0), Vector(-22.5, -1.2, 0)),
], False)
sketch15.addConstraint([
    Sketcher.Constraint("Tangent", 0, 1, 1, 1),
    Sketcher.Constraint("Coincident", 1, 2, 2, 1),
    Sketcher.Constraint("Coincident", 2, 2, 0, 2),
    Sketcher.Constraint("Coincident", 3, 1, 4, 1),
    Sketcher.Constraint("Coincident", 4, 2, 5, 1),
    Sketcher.Constraint("Coincident", 5, 2, 3, 2),
    Sketcher.Constraint("Coincident", 6, 1, 7, 1),
    Sketcher.Constraint("Coincident", 7, 2, 8, 1),
    Sketcher.Constraint("Tangent", 8, 2, 6, 2),
    Sketcher.Constraint("Coincident", 9, 1, 10, 1),
    Sketcher.Constraint("Coincident", 10, 2, 11, 1),
    Sketcher.Constraint("Coincident", 11, 2, 9, 2),
    Sketcher.Constraint("Vertical", 1),
    Sketcher.Constraint("Horizontal", 2),
    Sketcher.Constraint("Vertical", 4),
    Sketcher.Constraint("Horizontal", 5),
    Sketcher.Constraint("Horizontal", 7),
    Sketcher.Constraint("Vertical", 8),
    Sketcher.Constraint("Horizontal", 10),
    Sketcher.Constraint("Vertical", 11),
    Sketcher.Constraint("Equal", 0, 6),
    Sketcher.Constraint("PointOnObject", 0, 3, -1),
    Sketcher.Constraint("PointOnObject", 6, 3, -1),
    Sketcher.Constraint("Horizontal", 2, 2, 6, 1),
    Sketcher.Constraint("Horizontal", 5, 2, 9, 1),
    Sketcher.Constraint("Vertical", 2, 2, 3, 1),
    Sketcher.Constraint("Vertical", 6, 1, 10, 2),
    Sketcher.Constraint("Equal", 10, 11),
    Sketcher.Constraint("DistanceX", 2, 2, 2, 1, 4.5),
    Sketcher.Constraint("DistanceX", 5, 1, 5, 2, 2.7),
    Sketcher.Constraint("DistanceX", 10, 1, 10, 2, 2.8),
    Sketcher.Constraint("DistanceY", 1, 1, 1, 2, 6.5),
    Sketcher.Constraint("DistanceY", 9, 3, -1, 1, 1.0),
    Sketcher.Constraint("DistanceY", 4, 2, -1, 1, 4.0),
    Sketcher.Constraint("DistanceX", 3, 3, 0, 1, 0.9),
    Sketcher.Constraint("DistanceY", 3, 3, -1, 1, 0.33),
    Sketcher.Constraint("DistanceX", -1, 1, 3, 3, 28.50828),
    Sketcher.Constraint("DistanceX", 9, 3, -1, 1, 25.501992),
])
pocket10 = body.newObject("PartDesign::Pocket", "Pocket009")
pocket10.Profile = sketch15
pocket10.Type = "ThroughAll"
pocket10.Midplane = True

doc.recompute()
